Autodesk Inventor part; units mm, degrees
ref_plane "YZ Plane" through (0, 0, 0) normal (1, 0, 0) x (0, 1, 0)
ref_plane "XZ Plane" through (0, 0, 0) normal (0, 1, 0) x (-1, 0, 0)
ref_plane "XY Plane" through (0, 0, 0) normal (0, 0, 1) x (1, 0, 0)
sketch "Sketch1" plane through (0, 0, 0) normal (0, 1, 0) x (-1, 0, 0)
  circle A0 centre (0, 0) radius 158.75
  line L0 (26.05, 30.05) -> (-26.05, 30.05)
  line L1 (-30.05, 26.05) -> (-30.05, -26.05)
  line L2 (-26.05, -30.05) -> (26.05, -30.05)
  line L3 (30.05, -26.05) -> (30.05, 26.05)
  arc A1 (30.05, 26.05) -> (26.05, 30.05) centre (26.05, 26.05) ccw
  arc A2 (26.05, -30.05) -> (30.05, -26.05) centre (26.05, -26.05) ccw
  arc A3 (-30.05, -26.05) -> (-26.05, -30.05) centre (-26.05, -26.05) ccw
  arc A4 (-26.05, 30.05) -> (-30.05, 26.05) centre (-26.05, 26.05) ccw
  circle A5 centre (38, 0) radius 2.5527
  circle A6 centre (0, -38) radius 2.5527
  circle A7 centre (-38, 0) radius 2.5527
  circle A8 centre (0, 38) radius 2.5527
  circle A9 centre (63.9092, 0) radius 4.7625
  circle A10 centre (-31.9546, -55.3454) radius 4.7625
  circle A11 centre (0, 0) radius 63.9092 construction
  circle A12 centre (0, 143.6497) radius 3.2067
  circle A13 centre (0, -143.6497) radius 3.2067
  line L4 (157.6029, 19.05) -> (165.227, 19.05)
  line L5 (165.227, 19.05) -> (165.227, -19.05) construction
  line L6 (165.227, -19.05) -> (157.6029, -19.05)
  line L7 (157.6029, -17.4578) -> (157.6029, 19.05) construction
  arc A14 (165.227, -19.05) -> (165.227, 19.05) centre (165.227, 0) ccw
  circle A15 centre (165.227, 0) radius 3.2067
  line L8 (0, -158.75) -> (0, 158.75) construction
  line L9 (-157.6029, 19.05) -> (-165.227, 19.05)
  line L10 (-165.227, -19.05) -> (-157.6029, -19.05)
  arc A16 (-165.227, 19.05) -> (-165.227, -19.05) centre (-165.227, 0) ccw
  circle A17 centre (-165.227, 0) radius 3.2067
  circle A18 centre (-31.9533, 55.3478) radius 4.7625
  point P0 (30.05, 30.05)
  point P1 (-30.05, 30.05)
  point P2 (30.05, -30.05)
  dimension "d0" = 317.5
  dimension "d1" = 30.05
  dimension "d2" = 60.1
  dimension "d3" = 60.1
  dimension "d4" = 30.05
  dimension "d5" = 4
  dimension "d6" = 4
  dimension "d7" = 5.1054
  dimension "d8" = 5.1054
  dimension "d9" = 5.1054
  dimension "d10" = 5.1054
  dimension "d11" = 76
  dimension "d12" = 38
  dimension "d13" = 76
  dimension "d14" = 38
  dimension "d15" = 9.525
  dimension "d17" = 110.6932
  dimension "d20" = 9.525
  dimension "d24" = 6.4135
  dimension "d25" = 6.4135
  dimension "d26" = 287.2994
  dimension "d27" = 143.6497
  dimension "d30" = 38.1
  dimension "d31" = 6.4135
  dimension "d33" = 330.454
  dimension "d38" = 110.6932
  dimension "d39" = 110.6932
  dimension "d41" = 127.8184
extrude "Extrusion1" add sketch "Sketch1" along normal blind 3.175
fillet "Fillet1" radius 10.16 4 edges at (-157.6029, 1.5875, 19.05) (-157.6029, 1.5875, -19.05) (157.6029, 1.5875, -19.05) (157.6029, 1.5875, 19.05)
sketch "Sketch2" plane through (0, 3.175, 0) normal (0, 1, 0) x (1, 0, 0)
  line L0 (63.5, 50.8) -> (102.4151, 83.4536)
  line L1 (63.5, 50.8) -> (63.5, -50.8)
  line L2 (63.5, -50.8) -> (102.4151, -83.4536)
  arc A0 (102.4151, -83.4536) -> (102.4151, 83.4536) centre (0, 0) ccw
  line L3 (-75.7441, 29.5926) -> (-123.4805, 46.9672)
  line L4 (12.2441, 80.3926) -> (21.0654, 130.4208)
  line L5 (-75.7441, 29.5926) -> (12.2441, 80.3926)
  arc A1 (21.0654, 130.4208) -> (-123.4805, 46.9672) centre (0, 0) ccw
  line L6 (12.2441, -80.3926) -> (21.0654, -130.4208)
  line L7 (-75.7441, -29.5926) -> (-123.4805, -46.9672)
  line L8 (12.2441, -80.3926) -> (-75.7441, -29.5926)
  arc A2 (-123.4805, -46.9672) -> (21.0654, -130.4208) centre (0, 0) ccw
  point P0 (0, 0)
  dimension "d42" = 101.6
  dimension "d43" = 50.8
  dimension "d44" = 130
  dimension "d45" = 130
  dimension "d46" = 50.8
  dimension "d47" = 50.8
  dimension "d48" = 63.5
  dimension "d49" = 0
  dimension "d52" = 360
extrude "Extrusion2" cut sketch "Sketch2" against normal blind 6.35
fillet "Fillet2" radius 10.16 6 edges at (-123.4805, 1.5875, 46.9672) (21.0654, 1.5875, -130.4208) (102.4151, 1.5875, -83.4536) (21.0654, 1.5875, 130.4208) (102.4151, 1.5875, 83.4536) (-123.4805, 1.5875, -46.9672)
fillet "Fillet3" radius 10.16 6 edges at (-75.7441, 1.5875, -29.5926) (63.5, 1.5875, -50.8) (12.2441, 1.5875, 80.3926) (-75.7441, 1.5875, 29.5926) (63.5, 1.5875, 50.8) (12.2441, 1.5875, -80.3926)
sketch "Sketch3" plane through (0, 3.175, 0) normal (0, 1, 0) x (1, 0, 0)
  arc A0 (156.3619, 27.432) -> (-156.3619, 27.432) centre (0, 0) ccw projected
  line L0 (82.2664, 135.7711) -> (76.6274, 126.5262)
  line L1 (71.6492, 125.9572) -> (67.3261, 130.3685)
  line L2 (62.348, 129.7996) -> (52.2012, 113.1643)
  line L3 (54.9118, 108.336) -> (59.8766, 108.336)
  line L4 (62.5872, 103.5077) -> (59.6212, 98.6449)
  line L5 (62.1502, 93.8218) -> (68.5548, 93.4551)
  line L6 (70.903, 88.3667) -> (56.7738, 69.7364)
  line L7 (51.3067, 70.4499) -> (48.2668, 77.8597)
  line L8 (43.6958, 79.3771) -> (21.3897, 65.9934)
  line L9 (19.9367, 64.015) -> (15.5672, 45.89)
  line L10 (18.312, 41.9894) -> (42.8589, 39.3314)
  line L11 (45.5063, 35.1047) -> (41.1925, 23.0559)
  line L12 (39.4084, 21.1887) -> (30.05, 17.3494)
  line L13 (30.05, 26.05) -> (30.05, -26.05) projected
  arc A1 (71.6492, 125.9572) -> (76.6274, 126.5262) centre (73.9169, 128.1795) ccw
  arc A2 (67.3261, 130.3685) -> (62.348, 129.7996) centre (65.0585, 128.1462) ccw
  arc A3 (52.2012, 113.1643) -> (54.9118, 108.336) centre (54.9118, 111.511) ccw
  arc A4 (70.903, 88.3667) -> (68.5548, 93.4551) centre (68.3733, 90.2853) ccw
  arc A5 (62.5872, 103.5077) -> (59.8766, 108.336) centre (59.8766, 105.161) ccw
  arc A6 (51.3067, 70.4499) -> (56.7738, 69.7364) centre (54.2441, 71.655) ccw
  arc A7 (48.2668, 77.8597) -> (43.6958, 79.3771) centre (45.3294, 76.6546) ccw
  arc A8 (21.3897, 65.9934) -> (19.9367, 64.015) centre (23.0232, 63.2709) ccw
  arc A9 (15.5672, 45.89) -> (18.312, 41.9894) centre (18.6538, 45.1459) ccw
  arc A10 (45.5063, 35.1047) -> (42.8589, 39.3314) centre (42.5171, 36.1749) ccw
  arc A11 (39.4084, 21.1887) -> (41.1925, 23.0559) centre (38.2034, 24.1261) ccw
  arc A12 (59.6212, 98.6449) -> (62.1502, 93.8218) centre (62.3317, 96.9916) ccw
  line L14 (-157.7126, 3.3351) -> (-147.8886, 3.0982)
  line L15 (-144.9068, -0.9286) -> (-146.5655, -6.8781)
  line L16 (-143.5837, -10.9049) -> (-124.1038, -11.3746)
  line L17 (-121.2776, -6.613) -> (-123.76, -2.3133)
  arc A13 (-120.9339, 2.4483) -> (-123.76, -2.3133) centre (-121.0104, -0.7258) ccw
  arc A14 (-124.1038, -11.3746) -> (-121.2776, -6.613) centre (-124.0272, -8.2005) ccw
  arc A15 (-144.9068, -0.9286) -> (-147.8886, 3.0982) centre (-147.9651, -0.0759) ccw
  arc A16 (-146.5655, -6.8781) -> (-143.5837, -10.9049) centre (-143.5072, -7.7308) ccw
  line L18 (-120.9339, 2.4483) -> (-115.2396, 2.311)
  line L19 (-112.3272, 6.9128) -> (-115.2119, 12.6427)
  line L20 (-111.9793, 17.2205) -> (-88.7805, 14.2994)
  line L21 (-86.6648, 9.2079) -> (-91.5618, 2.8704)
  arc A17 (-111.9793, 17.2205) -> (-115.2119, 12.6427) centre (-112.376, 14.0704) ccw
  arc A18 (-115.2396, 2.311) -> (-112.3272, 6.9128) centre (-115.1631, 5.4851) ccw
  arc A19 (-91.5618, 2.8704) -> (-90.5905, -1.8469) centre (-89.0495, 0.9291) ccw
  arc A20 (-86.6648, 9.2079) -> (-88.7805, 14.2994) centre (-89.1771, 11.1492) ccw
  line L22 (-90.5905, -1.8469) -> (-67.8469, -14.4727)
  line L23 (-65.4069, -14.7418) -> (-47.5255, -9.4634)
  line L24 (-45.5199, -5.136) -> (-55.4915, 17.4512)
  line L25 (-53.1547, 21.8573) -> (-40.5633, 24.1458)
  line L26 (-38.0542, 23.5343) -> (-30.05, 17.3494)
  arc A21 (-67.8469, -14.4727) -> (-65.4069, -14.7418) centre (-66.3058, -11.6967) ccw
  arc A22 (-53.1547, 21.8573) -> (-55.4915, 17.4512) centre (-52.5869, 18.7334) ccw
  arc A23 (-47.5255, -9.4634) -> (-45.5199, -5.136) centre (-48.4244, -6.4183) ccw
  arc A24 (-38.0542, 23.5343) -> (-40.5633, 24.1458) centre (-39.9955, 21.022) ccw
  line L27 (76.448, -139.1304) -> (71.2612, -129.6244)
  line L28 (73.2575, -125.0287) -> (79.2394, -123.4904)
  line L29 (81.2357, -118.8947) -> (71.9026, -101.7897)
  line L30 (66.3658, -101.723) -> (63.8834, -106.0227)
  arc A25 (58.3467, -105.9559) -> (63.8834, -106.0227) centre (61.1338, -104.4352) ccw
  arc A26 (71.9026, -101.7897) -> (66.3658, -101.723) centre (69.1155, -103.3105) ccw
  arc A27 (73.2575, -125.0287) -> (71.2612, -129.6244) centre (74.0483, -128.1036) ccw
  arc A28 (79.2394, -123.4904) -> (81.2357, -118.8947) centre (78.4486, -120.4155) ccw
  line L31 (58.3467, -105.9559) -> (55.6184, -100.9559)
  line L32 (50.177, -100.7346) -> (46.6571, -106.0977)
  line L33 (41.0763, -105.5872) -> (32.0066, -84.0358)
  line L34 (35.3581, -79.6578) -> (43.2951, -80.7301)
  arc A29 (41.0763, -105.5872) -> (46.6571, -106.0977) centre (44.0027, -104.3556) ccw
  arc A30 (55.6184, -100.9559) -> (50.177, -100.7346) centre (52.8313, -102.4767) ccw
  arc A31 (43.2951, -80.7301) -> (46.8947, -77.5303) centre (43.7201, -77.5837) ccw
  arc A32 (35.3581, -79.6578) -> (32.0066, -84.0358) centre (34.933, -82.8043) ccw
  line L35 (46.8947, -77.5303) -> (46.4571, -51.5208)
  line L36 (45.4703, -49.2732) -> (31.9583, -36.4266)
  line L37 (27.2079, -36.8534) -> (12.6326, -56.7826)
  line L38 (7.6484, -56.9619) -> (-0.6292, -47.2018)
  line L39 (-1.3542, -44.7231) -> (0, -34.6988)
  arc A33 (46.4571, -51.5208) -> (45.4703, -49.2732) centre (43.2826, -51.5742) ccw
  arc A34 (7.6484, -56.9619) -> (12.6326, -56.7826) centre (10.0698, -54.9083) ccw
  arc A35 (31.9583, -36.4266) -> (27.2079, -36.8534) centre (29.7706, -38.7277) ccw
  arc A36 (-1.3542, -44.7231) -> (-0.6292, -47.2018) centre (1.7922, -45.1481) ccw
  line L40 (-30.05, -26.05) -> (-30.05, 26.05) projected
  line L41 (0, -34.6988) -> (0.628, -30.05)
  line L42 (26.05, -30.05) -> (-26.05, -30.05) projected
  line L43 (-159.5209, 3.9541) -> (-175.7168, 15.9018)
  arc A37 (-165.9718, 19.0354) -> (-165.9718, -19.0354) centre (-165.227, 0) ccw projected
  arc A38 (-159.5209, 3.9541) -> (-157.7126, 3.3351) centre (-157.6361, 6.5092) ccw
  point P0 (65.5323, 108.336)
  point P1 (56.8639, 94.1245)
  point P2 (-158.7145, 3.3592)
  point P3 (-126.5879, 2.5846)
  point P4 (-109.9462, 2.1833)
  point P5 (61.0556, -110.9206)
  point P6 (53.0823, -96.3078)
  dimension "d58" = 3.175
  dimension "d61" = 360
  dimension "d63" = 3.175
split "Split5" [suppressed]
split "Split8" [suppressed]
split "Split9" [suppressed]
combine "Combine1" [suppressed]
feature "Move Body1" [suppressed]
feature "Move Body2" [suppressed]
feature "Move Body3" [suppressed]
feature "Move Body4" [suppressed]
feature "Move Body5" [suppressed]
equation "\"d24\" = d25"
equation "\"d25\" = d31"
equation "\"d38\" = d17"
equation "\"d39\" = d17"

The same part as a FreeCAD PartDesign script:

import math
import FreeCAD as App
import Part
import Sketcher

V = App.Vector
Q = App.Units.Quantity


def edges_at(feature, points):
    """Names of the edges that pass closest to the given points."""
    edges = feature.Shape.Edges
    near = lambda p: min(range(len(edges)), key=lambda i: edges[i].distToShape(Part.Vertex(*p))[0])
    return sorted({f"Edge{near(p) + 1}" for p in points})

doc = App.newDocument("Part")
params = doc.addObject("Spreadsheet::Sheet", "Params")
for row, (alias, value) in enumerate([
    ("sketch1_radius", "6.25 in"),
    ("sketch1_radius2", "0.75 in"),
    ("sketch1_diameter", "0.375 in"),
    ("sketch1_diameter2", "0.201 in"),
    ("pad1_length", "0.125 in"),
    ("fillet_radius", "0.4 in"),
    ("sketch2_height", "4 in"),
    ("sketch2_length", "2 in"),
    ("sketch2_length2", "4 in"),
    ("pocket1_length", "0.25 in"),
    ("fillet2_radius", "0.4 in"),
    ("fillet3_radius", "0.4 in"),
], start=1):
    params.set(f"A{row}", alias)
    params.set(f"B{row}", "=" + value)
    params.setAlias(f"B{row}", alias)

body = doc.addObject("PartDesign::Body", "Body")

# Sketch on XZ plane
sketch1 = doc.addObject("Sketcher::SketchObject", "Sketch")
body.addObject(sketch1)
sketch1.AttachmentSupport = (doc.XZ_Plane, [""])
sketch1.MapMode = "FlatFace"
sketch1.addGeometry(Part.ArcOfCircle(Part.Circle(V(0, 0, 0), V(0, 0, 1), 158.8), math.radians(-173), math.radians(-7)), False)
sketch1.addGeometry(Part.LineSegment(V(-157.6, -19.1, 0), V(-165.2, -19.1, 0)), False)
sketch1.addGeometry(Part.ArcOfCircle(Part.Circle(V(-165.2, 0, 0), V(0, 0, 1), 19.1), math.radians(90), math.radians(270)), False)
sketch1.addGeometry(Part.LineSegment(V(-165.2, 19.1, 0), V(-157.6, 19.1, 0)), False)
sketch1.addGeometry(Part.ArcOfCircle(Part.Circle(V(0, 0, 0), V(0, 0, 1), 158.8), math.radians(7), math.radians(173)), False)
sketch1.addGeometry(Part.LineSegment(V(157.6, 19.1, 0), V(165.2, 19.1, 0)), False)
sketch1.addGeometry(Part.ArcOfCircle(Part.Circle(V(165.2, 0, 0), V(0, 0, 1), 19.1), math.radians(-90), math.radians(90)), False)
sketch1.addGeometry(Part.LineSegment(V(165.2, -19.1, 0), V(157.6, -19.1, 0)), False)
sketch1.addGeometry(Part.Circle(V(0, -143.6, 0), V(0, 0, 1), 3.2), False)
sketch1.addGeometry(Part.Circle(V(32, -55.3, 0), V(0, 0, 1), 4.8), False)
sketch1.addGeometry(Part.Circle(V(0, -38, 0), V(0, 0, 1), 2.6), False)
sketch1.addGeometry(Part.Circle(V(38, 0, 0), V(0, 0, 1), 2.6), False)
sketch1.addGeometry(Part.LineSegment(V(26.1, 30.1, 0), V(-26.1, 30.1, 0)), False)
sketch1.addGeometry(Part.ArcOfCircle(Part.Circle(V(-26.1, 26.1, 0), V(0, 0, 1), 4), math.radians(90), math.radians(180)), False)
sketch1.addGeometry(Part.LineSegment(V(-30.1, 26.1, 0), V(-30.1, -26.1, 0)), False)
sketch1.addGeometry(Part.ArcOfCircle(Part.Circle(V(-26.1, -26.1, 0), V(0, 0, 1), 4), math.radians(180), math.radians(270)), False)
sketch1.addGeometry(Part.LineSegment(V(-26.1, -30.1, 0), V(26.1, -30.1, 0)), False)
sketch1.addGeometry(Part.ArcOfCircle(Part.Circle(V(26.1, -26.1, 0), V(0, 0, 1), 4), math.radians(-90), math.radians(0)), False)
sketch1.addGeometry(Part.LineSegment(V(30.1, -26.1, 0), V(30.1, 26.1, 0)), False)
sketch1.addGeometry(Part.ArcOfCircle(Part.Circle(V(26.1, 26.1, 0), V(0, 0, 1), 4), math.radians(0), math.radians(90)), False)
sketch1.addGeometry(Part.Circle(V(0, 38, 0), V(0, 0, 1), 2.6), False)
sketch1.addGeometry(Part.Circle(V(32, 55.3, 0), V(0, 0, 1), 4.8), False)
sketch1.addGeometry(Part.Circle(V(0, 143.6, 0), V(0, 0, 1), 3.2), False)
sketch1.addGeometry(Part.Circle(V(-38, 0, 0), V(0, 0, 1), 2.6), False)
sketch1.addGeometry(Part.Circle(V(-63.9, 0, 0), V(0, 0, 1), 4.8), False)
sketch1.addGeometry(Part.Circle(V(-165.2, 0, 0), V(0, 0, 1), 3.2), False)
sketch1.addGeometry(Part.Circle(V(165.2, 0, 0), V(0, 0, 1), 3.2), False)
sketch1.addConstraint(Sketcher.Constraint("Coincident", 0, 1, 1, 1))
sketch1.addConstraint(Sketcher.Constraint("Tangent", 1, 2, 2, 2))
sketch1.addConstraint(Sketcher.Constraint("Tangent", 2, 1, 3, 1))
sketch1.addConstraint(Sketcher.Constraint("Coincident", 3, 2, 4, 2))
sketch1.addConstraint(Sketcher.Constraint("Coincident", 4, 1, 5, 1))
sketch1.addConstraint(Sketcher.Constraint("Tangent", 5, 2, 6, 2))
sketch1.addConstraint(Sketcher.Constraint("Tangent", 6, 1, 7, 1))
sketch1.addConstraint(Sketcher.Constraint("Coincident", 7, 2, 0, 2))
sketch1.addConstraint(Sketcher.Constraint("Tangent", 12, 2, 13, 1))
sketch1.addConstraint(Sketcher.Constraint("Tangent", 13, 2, 14, 1))
sketch1.addConstraint(Sketcher.Constraint("Tangent", 14, 2, 15, 1))
sketch1.addConstraint(Sketcher.Constraint("Tangent", 15, 2, 16, 1))
sketch1.addConstraint(Sketcher.Constraint("Tangent", 16, 2, 17, 1))
sketch1.addConstraint(Sketcher.Constraint("Tangent", 17, 2, 18, 1))
sketch1.addConstraint(Sketcher.Constraint("Tangent", 18, 2, 19, 1))
sketch1.addConstraint(Sketcher.Constraint("Tangent", 19, 2, 12, 1))
sketch1.addConstraint(Sketcher.Constraint("Horizontal", 1))
sketch1.addConstraint(Sketcher.Constraint("Horizontal", 3))
sketch1.addConstraint(Sketcher.Constraint("Horizontal", 5))
sketch1.addConstraint(Sketcher.Constraint("Horizontal", 7))
sketch1.addConstraint(Sketcher.Constraint("Horizontal", 12))
sketch1.addConstraint(Sketcher.Constraint("Vertical", 14))
sketch1.addConstraint(Sketcher.Constraint("Horizontal", 16))
sketch1.addConstraint(Sketcher.Constraint("Vertical", 18))
sketch1.addConstraint(Sketcher.Constraint("Coincident", 0, 3, -1, 1))
sketch1.addConstraint(Sketcher.Constraint("Coincident", 4, 3, -1, 1))
sketch1.addConstraint(Sketcher.Constraint("Coincident", 25, 3, 2, 3))
sketch1.addConstraint(Sketcher.Constraint("Coincident", 26, 3, 6, 3))
sketch1.addConstraint(Sketcher.Constraint("Equal", 0, 4))
sketch1.addConstraint(Sketcher.Constraint("Equal", 2, 6))
sketch1.addConstraint(Sketcher.Constraint("Equal", 10, 11))
sketch1.addConstraint(Sketcher.Constraint("Equal", 13, 15))
sketch1.addConstraint(Sketcher.Constraint("Equal", 15, 17))
sketch1.addConstraint(Sketcher.Constraint("Equal", 17, 19))
sketch1.addConstraint(Sketcher.Constraint("Equal", 11, 20))
sketch1.addConstraint(Sketcher.Constraint("Equal", 9, 21))
sketch1.addConstraint(Sketcher.Constraint("Equal", 8, 22))
sketch1.addConstraint(Sketcher.Constraint("Equal", 20, 23))
sketch1.addConstraint(Sketcher.Constraint("Equal", 21, 24))
sketch1.addConstraint(Sketcher.Constraint("Equal", 22, 25))
sketch1.addConstraint(Sketcher.Constraint("Equal", 25, 26))
sketch1.addConstraint(Sketcher.Constraint("Symmetric", 2, 3, 6, 3, -1, 1))
sketch1.addConstraint(Sketcher.Constraint("Symmetric", 13, 3, 17, 3, -1, 1))
sketch1.addConstraint(Sketcher.Constraint("Symmetric", 10, 3, 20, 3, -1, 1))
sketch1.addConstraint(Sketcher.Constraint("Symmetric", 8, 3, 22, 3, -1, 1))
sketch1.addConstraint(Sketcher.Constraint("Symmetric", 11, 3, 23, 3, -1, 1))
sketch1.addConstraint(Sketcher.Constraint("PointOnObject", 2, 3, -1))
sketch1.addConstraint(Sketcher.Constraint("PointOnObject", 8, 3, -2))
sketch1.addConstraint(Sketcher.Constraint("PointOnObject", 10, 3, -2))
sketch1.addConstraint(Sketcher.Constraint("PointOnObject", 11, 3, -1))
sketch1.addConstraint(Sketcher.Constraint("PointOnObject", 24, 3, -1))
sketch1.addConstraint(Sketcher.Constraint("Equal", 16, 14))
sketch1.addConstraint(Sketcher.Constraint("Radius", 0, Q("6.25 in")))
sketch1.addConstraint(Sketcher.Constraint("Radius", 2, Q("0.75 in")))
sketch1.addConstraint(Sketcher.Constraint("Diameter", 9, Q("0.375 in")))
sketch1.addConstraint(Sketcher.Constraint("Diameter", 10, Q("0.201 in")))
sketch1.addConstraint(Sketcher.Constraint("Diameter", 8, Q("0.2525 in")))
sketch1.addConstraint(Sketcher.Constraint("Radius", 13, 4.0))
sketch1.addConstraint(Sketcher.Constraint("DistanceX", 2, 3, 6, 3, Q("13.01 in")))
sketch1.addConstraint(Sketcher.Constraint("DistanceY", 8, 3, -1, 1, Q("5.6555 in")))
sketch1.addConstraint(Sketcher.Constraint("DistanceY", 10, 3, -1, 1, 38.0))
sketch1.addConstraint(Sketcher.Constraint("DistanceX", -1, 1, 11, 3, 38.0))
sketch1.addConstraint(Sketcher.Constraint("DistanceY", -1, 1, 12, 2, 30.05))
sketch1.addConstraint(Sketcher.Constraint("DistanceX", -1, 1, 21, 3, Q("1.258 in")))
sketch1.addConstraint(Sketcher.Constraint("DistanceX", 9, 3, 11, 3, Q("0.238 in")))
sketch1.addConstraint(Sketcher.Constraint("DistanceX", 24, 3, -1, 1, Q("2.5161 in")))
sketch1.addConstraint(Sketcher.Constraint("DistanceY", 9, 3, 10, 3, Q("0.6829 in")))
sketch1.addConstraint(Sketcher.Constraint("DistanceY", -1, 1, 21, 3, 55.3478))
sketch1.setExpression("Constraints[52]", "Params.sketch1_radius")
sketch1.setExpression("Constraints[53]", "Params.sketch1_radius2")
sketch1.setExpression("Constraints[54]", "Params.sketch1_diameter")
sketch1.setExpression("Constraints[55]", "Params.sketch1_diameter2")
pad1 = doc.addObject("PartDesign::Pad", "Pad")
body.addObject(pad1)
pad1.Profile = sketch1
pad1.setExpression("Length", "Params.pad1_length")
pad1.Reversed = True
doc.recompute()

fillet = doc.addObject("PartDesign::Fillet", "Fillet")
body.addObject(fillet)
fillet.Base = (pad1, edges_at(pad1, [
    (-157.603, 1.587, 19.05),
    (-157.603, 1.587, -19.05),
    (157.603, 1.587, -19.05),
    (157.603, 1.587, 19.05),
]))
fillet.setExpression("Radius", "Params.fillet_radius")

# Sketch on XZ plane
sketch2 = doc.addObject("Sketcher::SketchObject", "Sketch001")
body.addObject(sketch2)
sketch2.AttachmentSupport = (doc.XZ_Plane, [""])
sketch2.MapMode = "FlatFace"
sketch2.AttachmentOffset = App.Placement(V(0, 0, -0.125 * 25.4), App.Rotation())
sketch2.addGeometry(Part.LineSegment(V(102, -83, 0), V(64, -51, 0)), False)
sketch2.addGeometry(Part.LineSegment(V(64, -51, 0), V(64, 51, 0)), False)
sketch2.addGeometry(Part.LineSegment(V(64, 51, 0), V(102, 83, 0)), False)
sketch2.addGeometry(Part.ArcOfCircle(Part.Circle(V(0, 0, 0), V(0, 0, 1), 132), math.radians(-39), math.radians(39)), False)
sketch2.addGeometry(Part.LineSegment(V(-123, -47, 0), V(-76, -30, 0)), False)
sketch2.addGeometry(Part.LineSegment(V(-76, -30, 0), V(12, -80, 0)), False)
sketch2.addGeometry(Part.LineSegment(V(12, -80, 0), V(21, -130, 0)), False)
sketch2.addGeometry(Part.ArcOfCircle(Part.Circle(V(0, 0, 0), V(0, 0, 1), 132), math.radians(-159), math.radians(-81)), False)
sketch2.addGeometry(Part.LineSegment(V(21, 130, 0), V(12, 80, 0)), False)
sketch2.addGeometry(Part.LineSegment(V(12, 80, 0), V(-76, 30, 0)), False)
sketch2.addGeometry(Part.LineSegment(V(-76, 30, 0), V(-123, 47, 0)), False)
sketch2.addGeometry(Part.ArcOfCircle(Part.Circle(V(0, 0, 0), V(0, 0, 1), 132), math.radians(81), math.radians(159)), False)
sketch2.addConstraint(Sketcher.Constraint("Coincident", 0, 2, 1, 1))
sketch2.addConstraint(Sketcher.Constraint("Coincident", 1, 2, 2, 1))
sketch2.addConstraint(Sketcher.Constraint("Coincident", 2, 2, 3, 2))
sketch2.addConstraint(Sketcher.Constraint("Coincident", 3, 1, 0, 1))
sketch2.addConstraint(Sketcher.Constraint("Coincident", 4, 2, 5, 1))
sketch2.addConstraint(Sketcher.Constraint("Coincident", 5, 2, 6, 1))
sketch2.addConstraint(Sketcher.Constraint("Coincident", 6, 2, 7, 2))
sketch2.addConstraint(Sketcher.Constraint("Coincident", 7, 1, 4, 1))
sketch2.addConstraint(Sketcher.Constraint("Coincident", 8, 2, 9, 1))
sketch2.addConstraint(Sketcher.Constraint("Coincident", 9, 2, 10, 1))
sketch2.addConstraint(Sketcher.Constraint("Coincident", 10, 2, 11, 2))
sketch2.addConstraint(Sketcher.Constraint("Coincident", 11, 1, 8, 1))
sketch2.addConstraint(Sketcher.Constraint("Vertical", 1))
sketch2.addConstraint(Sketcher.Constraint("Coincident", 3, 3, -1, 1))
sketch2.addConstraint(Sketcher.Constraint("Coincident", 7, 3, -1, 1))
sketch2.addConstraint(Sketcher.Constraint("Coincident", 11, 3, -1, 1))
sketch2.addConstraint(Sketcher.Constraint("Equal", 3, 7))
sketch2.addConstraint(Sketcher.Constraint("Equal", 7, 11))
sketch2.addConstraint(Sketcher.Constraint("Symmetric", 5, 2, 8, 2, -1))
sketch2.addConstraint(Sketcher.Constraint("Symmetric", 4, 2, 9, 2, -1))
sketch2.addConstraint(Sketcher.Constraint("Vertical", 2, 2, 3, 1))
sketch2.addConstraint(Sketcher.Constraint("Vertical", 7, 1, 10, 2))
sketch2.addConstraint(Sketcher.Constraint("Vertical", 6, 2, 11, 1))
sketch2.addConstraint(Sketcher.Constraint("Equal", 0, 2))
sketch2.addConstraint(Sketcher.Constraint("Equal", 2, 4))
sketch2.addConstraint(Sketcher.Constraint("Equal", 4, 6))
sketch2.addConstraint(Sketcher.Constraint("DistanceY", 1, 1, 1, 2, Q("4 in")))
sketch2.addConstraint(Sketcher.Constraint("Distance", 0, Q("2 in")))
sketch2.addConstraint(Sketcher.Constraint("Distance", 5, Q("4 in")))
sketch2.addConstraint(Sketcher.Constraint("DistanceX", -1, 1, 0, 2, Q("2.5 in")))
sketch2.addConstraint(Sketcher.Constraint("Angle", 0, Q("140 deg")))
sketch2.addConstraint(Sketcher.Constraint("Angle", 4, Q("20 deg")))
sketch2.addConstraint(Sketcher.Constraint("Angle", 5, Q("-30 deg")))
sketch2.addConstraint(Sketcher.Constraint("Angle", 6, Q("-80 deg")))
sketch2.setExpression("Constraints[26]", "Params.sketch2_height")
sketch2.setExpression("Constraints[27]", "Params.sketch2_length")
sketch2.setExpression("Constraints[28]", "Params.sketch2_length2")
pocket1 = doc.addObject("PartDesign::Pocket", "Pocket")
body.addObject(pocket1)
pocket1.Profile = sketch2
pocket1.setExpression("Length", "Params.pocket1_length")
pocket1.Reversed = True
doc.recompute()

fillet2 = doc.addObject("PartDesign::Fillet", "Fillet001")
body.addObject(fillet2)
fillet2.Base = (pocket1, edges_at(pocket1, [
    (-123.481, 1.587, 46.967),
    (21.065, 1.587, -130.421),
    (102.415, 1.587, -83.454),
    (21.065, 1.587, 130.421),
    (102.415, 1.587, 83.454),
    (-123.481, 1.587, -46.967),
]))
fillet2.setExpression("Radius", "Params.fillet2_radius")
doc.recompute()

fillet3 = doc.addObject("PartDesign::Fillet", "Fillet002")
body.addObject(fillet3)
fillet3.Base = (fillet2, edges_at(fillet2, [
    (-75.744, 1.587, -29.593),
    (63.5, 1.587, -50.8),
    (12.244, 1.587, 80.393),
    (-75.744, 1.587, 29.593),
    (63.5, 1.587, 50.8),
    (12.244, 1.587, -80.393),
]))
fillet3.setExpression("Radius", "Params.fillet3_radius")

doc.recompute()
